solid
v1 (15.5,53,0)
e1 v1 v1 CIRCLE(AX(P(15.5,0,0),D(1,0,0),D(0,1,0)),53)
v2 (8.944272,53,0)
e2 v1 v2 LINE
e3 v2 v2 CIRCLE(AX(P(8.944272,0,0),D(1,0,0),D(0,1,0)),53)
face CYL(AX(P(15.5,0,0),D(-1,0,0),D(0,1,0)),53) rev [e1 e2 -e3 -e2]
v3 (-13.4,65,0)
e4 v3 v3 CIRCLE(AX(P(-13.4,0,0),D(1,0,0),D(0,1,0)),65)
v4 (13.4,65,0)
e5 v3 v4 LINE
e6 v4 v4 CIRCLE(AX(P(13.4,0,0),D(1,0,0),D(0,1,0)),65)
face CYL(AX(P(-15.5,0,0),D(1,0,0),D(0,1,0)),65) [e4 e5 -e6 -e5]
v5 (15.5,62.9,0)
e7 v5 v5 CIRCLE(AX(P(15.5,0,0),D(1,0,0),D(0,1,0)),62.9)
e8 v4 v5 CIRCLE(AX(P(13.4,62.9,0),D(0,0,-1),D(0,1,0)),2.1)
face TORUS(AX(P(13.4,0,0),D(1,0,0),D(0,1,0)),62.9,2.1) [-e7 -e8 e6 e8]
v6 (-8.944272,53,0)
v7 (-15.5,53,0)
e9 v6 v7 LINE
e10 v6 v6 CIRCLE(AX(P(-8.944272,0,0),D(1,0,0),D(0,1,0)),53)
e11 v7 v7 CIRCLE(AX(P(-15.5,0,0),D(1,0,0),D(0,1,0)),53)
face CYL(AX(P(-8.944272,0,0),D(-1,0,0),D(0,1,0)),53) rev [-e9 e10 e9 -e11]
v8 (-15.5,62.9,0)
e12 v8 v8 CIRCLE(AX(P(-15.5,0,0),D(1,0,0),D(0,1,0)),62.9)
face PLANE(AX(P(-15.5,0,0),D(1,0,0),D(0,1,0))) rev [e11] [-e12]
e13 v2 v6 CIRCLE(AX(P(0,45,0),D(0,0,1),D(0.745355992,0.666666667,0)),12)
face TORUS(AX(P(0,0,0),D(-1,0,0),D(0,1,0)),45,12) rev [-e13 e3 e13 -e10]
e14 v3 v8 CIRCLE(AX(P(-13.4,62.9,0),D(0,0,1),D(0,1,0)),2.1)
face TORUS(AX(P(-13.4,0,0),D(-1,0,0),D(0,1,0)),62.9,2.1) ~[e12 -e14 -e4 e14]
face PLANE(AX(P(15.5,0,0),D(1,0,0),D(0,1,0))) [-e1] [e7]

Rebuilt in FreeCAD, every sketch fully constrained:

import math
import FreeCAD as App
import Part
import Sketcher

V = App.Vector


def edges_at(feature, points):
    """Names of the edges that pass closest to the given points."""
    edges = feature.Shape.Edges
    near = lambda p: min(range(len(edges)), key=lambda i: edges[i].distToShape(Part.Vertex(*p))[0])
    return sorted({f"Edge{near(p) + 1}" for p in points})

doc = App.newDocument("Part")
body = doc.addObject("PartDesign::Body", "Body")

# Sketch on XY plane
sketch1 = body.newObject("Sketcher::SketchObject", "Sketch")
sketch1.AttachmentSupport = (doc.getObject("XY_Plane"), [""])
sketch1.MapMode = "FlatFace"
sketch1.addGeometry([
    Part.LineSegment(V(16, 65, 0), V(-16, 65, 0)),  # 0
    Part.LineSegment(V(-16, 65, 0), V(-16, 53, 0)),  # 1
    Part.LineSegment(V(-16, 53, 0), V(-9, 53, 0)),  # 2
    Part.ArcOfCircle(Part.Circle(V(0, 45, 0), V(0, 0, 1), 12), math.radians(42), math.radians(138)),  # 3
    Part.LineSegment(V(9, 53, 0), V(16, 53, 0)),  # 4
    Part.LineSegment(V(16, 53, 0), V(16, 65, 0)),  # 5
], False)
sketch1.addConstraint([
    Sketcher.Constraint("Coincident", 0, 2, 1, 1),
    Sketcher.Constraint("Coincident", 1, 2, 2, 1),
    Sketcher.Constraint("Coincident", 2, 2, 3, 2),
    Sketcher.Constraint("Coincident", 3, 1, 4, 1),
    Sketcher.Constraint("Coincident", 4, 2, 5, 1),
    Sketcher.Constraint("Coincident", 5, 2, 0, 1),
    Sketcher.Constraint("Horizontal", 0),
    Sketcher.Constraint("Vertical", 1),
    Sketcher.Constraint("Horizontal", 2),
    Sketcher.Constraint("Horizontal", 4),
    Sketcher.Constraint("Vertical", 5),
    Sketcher.Constraint("Symmetric", 2, 2, 3, 1, -2),
    Sketcher.Constraint("Equal", 2, 4),
    Sketcher.Constraint("Radius", 3, 12.0),
    Sketcher.Constraint("DistanceX", 0, 2, 0, 1, 31.0),
    Sketcher.Constraint("DistanceY", 1, 2, 1, 1, 12.0),
    Sketcher.Constraint("DistanceY", -1, 1, 3, 3, 45.0),
    Sketcher.Constraint("DistanceY", -1, 1, 0, 2, 65.0),
])
revolution = body.newObject("PartDesign::Revolution", "Revolution")
revolution.Profile = sketch1
revolution.ReferenceAxis = (sketch1, ["H_Axis"])
revolution.Angle = 360
doc.recompute()

fillet = body.newObject("PartDesign::Fillet", "Fillet")
fillet.Base = (revolution, edges_at(revolution, [(-15.5, -65, 0), (15.5, -65, 0)]))
fillet.Radius = 2.1

doc.recompute()
